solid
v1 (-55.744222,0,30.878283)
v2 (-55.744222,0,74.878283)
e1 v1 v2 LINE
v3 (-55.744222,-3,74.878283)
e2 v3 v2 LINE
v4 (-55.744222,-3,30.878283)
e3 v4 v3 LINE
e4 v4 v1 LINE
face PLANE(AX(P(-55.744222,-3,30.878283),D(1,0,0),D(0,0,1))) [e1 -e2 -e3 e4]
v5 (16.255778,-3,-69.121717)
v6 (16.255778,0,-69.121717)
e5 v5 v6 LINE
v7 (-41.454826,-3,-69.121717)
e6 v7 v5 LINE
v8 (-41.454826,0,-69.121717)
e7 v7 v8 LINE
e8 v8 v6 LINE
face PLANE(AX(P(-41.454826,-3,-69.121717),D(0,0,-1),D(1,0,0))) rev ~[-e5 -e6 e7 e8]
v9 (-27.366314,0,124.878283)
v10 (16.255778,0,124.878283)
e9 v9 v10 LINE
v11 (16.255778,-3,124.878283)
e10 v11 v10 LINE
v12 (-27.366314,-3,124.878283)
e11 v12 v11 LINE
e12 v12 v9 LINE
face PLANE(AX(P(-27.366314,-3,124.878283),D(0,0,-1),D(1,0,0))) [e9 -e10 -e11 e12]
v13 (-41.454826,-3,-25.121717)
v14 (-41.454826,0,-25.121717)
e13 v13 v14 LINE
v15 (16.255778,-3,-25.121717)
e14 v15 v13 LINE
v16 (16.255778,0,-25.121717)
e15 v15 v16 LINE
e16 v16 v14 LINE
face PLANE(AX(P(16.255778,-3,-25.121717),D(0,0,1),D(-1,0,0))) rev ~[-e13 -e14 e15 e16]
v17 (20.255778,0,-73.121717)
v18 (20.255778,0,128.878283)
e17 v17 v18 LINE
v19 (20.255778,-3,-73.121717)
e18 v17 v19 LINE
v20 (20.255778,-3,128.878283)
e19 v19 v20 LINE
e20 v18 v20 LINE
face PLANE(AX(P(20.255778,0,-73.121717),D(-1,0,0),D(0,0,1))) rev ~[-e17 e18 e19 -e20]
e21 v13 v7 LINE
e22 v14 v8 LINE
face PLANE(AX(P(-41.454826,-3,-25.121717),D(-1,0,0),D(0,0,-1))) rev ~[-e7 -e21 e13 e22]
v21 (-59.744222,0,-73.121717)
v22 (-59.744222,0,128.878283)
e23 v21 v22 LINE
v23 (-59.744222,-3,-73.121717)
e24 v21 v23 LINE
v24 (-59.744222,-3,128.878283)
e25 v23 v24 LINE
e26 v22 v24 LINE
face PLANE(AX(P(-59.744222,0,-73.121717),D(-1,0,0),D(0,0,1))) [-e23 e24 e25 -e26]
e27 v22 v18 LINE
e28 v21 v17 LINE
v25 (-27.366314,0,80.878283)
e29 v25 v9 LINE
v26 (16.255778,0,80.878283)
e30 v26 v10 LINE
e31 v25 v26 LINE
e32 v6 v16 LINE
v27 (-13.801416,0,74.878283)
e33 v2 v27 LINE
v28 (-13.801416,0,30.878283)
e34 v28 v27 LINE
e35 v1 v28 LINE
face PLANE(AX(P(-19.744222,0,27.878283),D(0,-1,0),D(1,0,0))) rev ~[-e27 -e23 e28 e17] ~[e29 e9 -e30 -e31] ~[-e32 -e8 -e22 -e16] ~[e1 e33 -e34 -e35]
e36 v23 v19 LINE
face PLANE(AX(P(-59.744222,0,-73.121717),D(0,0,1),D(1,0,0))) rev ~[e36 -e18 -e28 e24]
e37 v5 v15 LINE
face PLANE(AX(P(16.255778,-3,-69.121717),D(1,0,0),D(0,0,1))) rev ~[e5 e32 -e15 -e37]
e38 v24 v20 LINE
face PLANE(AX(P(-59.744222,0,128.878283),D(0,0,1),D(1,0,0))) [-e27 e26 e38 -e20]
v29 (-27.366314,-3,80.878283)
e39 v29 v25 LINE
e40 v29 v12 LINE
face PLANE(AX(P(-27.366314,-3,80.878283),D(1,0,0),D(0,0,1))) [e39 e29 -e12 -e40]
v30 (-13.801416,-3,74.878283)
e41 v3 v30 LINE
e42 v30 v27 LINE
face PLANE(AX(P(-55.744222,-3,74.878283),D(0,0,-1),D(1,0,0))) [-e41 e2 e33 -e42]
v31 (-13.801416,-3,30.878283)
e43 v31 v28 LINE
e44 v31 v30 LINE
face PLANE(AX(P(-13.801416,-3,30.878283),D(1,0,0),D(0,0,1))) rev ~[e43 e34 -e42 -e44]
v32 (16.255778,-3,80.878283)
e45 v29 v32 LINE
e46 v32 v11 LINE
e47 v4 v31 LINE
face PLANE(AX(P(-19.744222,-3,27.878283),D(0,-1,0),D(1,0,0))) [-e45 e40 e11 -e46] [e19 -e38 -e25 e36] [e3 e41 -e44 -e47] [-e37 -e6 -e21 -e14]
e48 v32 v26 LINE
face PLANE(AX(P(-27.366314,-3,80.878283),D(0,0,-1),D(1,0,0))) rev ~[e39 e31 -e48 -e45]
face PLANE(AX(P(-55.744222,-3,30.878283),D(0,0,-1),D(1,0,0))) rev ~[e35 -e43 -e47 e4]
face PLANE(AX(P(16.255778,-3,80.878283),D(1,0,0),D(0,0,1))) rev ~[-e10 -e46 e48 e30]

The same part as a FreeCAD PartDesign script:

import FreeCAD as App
import Part
import Sketcher
from FreeCAD import Vector


def add_polygon(sketch, points):
    """Adds a closed chain of lines whose ends are joined by coincident constraints."""
    first, n = sketch.GeometryCount, len(points)
    for a, b in zip(points, points[1:] + points[:1]):
        sketch.addGeometry(Part.LineSegment(App.Vector(*a, 0), App.Vector(*b, 0)), False)
    for i in range(n):
        sketch.addConstraint(Sketcher.Constraint("Coincident", first + i, 2, first + (i + 1) % n, 1))

doc = App.newDocument("Part")
params = doc.addObject("Spreadsheet::Sheet", "Params")
for row, (alias, value) in enumerate([
    ("sketch1_width", "80 mm"),
    ("sketch1_height", "202 mm"),
    ("pad1_length", "3 mm"),
    ("sketch2_height", "44 mm"),
    ("pocket1_length", "25 mm"),
], start=1):
    params.set(f"A{row}", alias)
    params.set(f"B{row}", "=" + value)
    params.setAlias(f"B{row}", alias)

body = doc.addObject("PartDesign::Body", "Body")

sketch1 = body.newObject("Sketcher::SketchObject", "Sketch")
sketch1.AttachmentSupport = (doc.getObject("XZ_Plane"), [""])
sketch1.MapMode = "FlatFace"
add_polygon(sketch1, [(-59.744222, 128.878283), (-59.744222, -73.121717), (20.255778, -73.121717), (20.255778, 128.878283)])
sketch1.addConstraint([
    Sketcher.Constraint("Vertical", 0),
    Sketcher.Constraint("Horizontal", 1),
    Sketcher.Constraint("Vertical", 2),
    Sketcher.Constraint("Horizontal", 3),
    Sketcher.Constraint("DistanceX", 1, 1, 1, 2, 80.0),
    Sketcher.Constraint("DistanceY", 0, 2, 0, 1, 202.0),
    Sketcher.Constraint("DistanceX", 0, 2, -1, 1, 59.744222),
    Sketcher.Constraint("DistanceY", 0, 2, -1, 1, 73.121717),
])
sketch1.setExpression("Constraints[8]", "Params.sketch1_width")
sketch1.setExpression("Constraints[9]", "Params.sketch1_height")
pad1 = body.newObject("PartDesign::Pad", "Pad")
pad1.Profile = sketch1
pad1.setExpression("Length", "Params.pad1_length")

sketch2 = body.newObject("Sketcher::SketchObject", "Sketch001")
sketch2.AttachmentSupport = (doc.getObject("XZ_Plane"), [""])
sketch2.MapMode = "FlatFace"
sketch2.AttachmentOffset = App.Placement(Vector(0, 0, 3), App.Rotation())
add_polygon(sketch2, [(-55.744222, 74.878283), (-55.744222, 30.878283), (-13.801416, 30.878283), (-13.801416, 74.878283)])
add_polygon(sketch2, [(-27.366314, 124.878283), (-27.366314, 80.878283), (16.255778, 80.878283), (16.255778, 124.878283)])
add_polygon(sketch2, [(16.255778, -25.121717), (-41.454826, -25.121717), (-41.454826, -69.121717), (16.255778, -69.121717)])
sketch2.addConstraint([
    Sketcher.Constraint("Vertical", 0),
    Sketcher.Constraint("Horizontal", 1),
    Sketcher.Constraint("Vertical", 2),
    Sketcher.Constraint("Horizontal", 3),
    Sketcher.Constraint("Vertical", 4),
    Sketcher.Constraint("Horizontal", 5),
    Sketcher.Constraint("Vertical", 6),
    Sketcher.Constraint("Horizontal", 7),
    Sketcher.Constraint("Horizontal", 8),
    Sketcher.Constraint("Vertical", 9),
    Sketcher.Constraint("Horizontal", 10),
    Sketcher.Constraint("Vertical", 11),
    Sketcher.Constraint("Vertical", 6, 2, 10, 2),
    Sketcher.Constraint("Equal", 2, 4),
    Sketcher.Constraint("Equal", 6, 9),
    Sketcher.Constraint("DistanceY", 0, 2, 0, 1, 44.0),
    Sketcher.Constraint("DistanceY", 2, 2, 4, 2, 6.0),
    Sketcher.Constraint("DistanceX", 3, 2, 5, 2, 72.0),
    Sketcher.Constraint("DistanceY", 8, 2, 0, 2, 56.0),
    Sketcher.Constraint("DistanceX", 5, 1, 5, 2, 43.622092),
    Sketcher.Constraint("DistanceX", 1, 1, 1, 2, 41.942806),
    Sketcher.Constraint("DistanceX", 8, 2, 8, 1, 57.710604),
    Sketcher.Constraint("DistanceX", 0, 2, -1, 1, 55.744222),
    Sketcher.Constraint("DistanceY", -1, 1, 0, 2, 30.878283),
])
sketch2.setExpression("Constraints[27]", "Params.sketch2_height")
pocket1 = body.newObject("PartDesign::Pocket", "Pocket")
pocket1.Profile = sketch2
pocket1.setExpression("Length", "Params.pocket1_length")

doc.recompute()
